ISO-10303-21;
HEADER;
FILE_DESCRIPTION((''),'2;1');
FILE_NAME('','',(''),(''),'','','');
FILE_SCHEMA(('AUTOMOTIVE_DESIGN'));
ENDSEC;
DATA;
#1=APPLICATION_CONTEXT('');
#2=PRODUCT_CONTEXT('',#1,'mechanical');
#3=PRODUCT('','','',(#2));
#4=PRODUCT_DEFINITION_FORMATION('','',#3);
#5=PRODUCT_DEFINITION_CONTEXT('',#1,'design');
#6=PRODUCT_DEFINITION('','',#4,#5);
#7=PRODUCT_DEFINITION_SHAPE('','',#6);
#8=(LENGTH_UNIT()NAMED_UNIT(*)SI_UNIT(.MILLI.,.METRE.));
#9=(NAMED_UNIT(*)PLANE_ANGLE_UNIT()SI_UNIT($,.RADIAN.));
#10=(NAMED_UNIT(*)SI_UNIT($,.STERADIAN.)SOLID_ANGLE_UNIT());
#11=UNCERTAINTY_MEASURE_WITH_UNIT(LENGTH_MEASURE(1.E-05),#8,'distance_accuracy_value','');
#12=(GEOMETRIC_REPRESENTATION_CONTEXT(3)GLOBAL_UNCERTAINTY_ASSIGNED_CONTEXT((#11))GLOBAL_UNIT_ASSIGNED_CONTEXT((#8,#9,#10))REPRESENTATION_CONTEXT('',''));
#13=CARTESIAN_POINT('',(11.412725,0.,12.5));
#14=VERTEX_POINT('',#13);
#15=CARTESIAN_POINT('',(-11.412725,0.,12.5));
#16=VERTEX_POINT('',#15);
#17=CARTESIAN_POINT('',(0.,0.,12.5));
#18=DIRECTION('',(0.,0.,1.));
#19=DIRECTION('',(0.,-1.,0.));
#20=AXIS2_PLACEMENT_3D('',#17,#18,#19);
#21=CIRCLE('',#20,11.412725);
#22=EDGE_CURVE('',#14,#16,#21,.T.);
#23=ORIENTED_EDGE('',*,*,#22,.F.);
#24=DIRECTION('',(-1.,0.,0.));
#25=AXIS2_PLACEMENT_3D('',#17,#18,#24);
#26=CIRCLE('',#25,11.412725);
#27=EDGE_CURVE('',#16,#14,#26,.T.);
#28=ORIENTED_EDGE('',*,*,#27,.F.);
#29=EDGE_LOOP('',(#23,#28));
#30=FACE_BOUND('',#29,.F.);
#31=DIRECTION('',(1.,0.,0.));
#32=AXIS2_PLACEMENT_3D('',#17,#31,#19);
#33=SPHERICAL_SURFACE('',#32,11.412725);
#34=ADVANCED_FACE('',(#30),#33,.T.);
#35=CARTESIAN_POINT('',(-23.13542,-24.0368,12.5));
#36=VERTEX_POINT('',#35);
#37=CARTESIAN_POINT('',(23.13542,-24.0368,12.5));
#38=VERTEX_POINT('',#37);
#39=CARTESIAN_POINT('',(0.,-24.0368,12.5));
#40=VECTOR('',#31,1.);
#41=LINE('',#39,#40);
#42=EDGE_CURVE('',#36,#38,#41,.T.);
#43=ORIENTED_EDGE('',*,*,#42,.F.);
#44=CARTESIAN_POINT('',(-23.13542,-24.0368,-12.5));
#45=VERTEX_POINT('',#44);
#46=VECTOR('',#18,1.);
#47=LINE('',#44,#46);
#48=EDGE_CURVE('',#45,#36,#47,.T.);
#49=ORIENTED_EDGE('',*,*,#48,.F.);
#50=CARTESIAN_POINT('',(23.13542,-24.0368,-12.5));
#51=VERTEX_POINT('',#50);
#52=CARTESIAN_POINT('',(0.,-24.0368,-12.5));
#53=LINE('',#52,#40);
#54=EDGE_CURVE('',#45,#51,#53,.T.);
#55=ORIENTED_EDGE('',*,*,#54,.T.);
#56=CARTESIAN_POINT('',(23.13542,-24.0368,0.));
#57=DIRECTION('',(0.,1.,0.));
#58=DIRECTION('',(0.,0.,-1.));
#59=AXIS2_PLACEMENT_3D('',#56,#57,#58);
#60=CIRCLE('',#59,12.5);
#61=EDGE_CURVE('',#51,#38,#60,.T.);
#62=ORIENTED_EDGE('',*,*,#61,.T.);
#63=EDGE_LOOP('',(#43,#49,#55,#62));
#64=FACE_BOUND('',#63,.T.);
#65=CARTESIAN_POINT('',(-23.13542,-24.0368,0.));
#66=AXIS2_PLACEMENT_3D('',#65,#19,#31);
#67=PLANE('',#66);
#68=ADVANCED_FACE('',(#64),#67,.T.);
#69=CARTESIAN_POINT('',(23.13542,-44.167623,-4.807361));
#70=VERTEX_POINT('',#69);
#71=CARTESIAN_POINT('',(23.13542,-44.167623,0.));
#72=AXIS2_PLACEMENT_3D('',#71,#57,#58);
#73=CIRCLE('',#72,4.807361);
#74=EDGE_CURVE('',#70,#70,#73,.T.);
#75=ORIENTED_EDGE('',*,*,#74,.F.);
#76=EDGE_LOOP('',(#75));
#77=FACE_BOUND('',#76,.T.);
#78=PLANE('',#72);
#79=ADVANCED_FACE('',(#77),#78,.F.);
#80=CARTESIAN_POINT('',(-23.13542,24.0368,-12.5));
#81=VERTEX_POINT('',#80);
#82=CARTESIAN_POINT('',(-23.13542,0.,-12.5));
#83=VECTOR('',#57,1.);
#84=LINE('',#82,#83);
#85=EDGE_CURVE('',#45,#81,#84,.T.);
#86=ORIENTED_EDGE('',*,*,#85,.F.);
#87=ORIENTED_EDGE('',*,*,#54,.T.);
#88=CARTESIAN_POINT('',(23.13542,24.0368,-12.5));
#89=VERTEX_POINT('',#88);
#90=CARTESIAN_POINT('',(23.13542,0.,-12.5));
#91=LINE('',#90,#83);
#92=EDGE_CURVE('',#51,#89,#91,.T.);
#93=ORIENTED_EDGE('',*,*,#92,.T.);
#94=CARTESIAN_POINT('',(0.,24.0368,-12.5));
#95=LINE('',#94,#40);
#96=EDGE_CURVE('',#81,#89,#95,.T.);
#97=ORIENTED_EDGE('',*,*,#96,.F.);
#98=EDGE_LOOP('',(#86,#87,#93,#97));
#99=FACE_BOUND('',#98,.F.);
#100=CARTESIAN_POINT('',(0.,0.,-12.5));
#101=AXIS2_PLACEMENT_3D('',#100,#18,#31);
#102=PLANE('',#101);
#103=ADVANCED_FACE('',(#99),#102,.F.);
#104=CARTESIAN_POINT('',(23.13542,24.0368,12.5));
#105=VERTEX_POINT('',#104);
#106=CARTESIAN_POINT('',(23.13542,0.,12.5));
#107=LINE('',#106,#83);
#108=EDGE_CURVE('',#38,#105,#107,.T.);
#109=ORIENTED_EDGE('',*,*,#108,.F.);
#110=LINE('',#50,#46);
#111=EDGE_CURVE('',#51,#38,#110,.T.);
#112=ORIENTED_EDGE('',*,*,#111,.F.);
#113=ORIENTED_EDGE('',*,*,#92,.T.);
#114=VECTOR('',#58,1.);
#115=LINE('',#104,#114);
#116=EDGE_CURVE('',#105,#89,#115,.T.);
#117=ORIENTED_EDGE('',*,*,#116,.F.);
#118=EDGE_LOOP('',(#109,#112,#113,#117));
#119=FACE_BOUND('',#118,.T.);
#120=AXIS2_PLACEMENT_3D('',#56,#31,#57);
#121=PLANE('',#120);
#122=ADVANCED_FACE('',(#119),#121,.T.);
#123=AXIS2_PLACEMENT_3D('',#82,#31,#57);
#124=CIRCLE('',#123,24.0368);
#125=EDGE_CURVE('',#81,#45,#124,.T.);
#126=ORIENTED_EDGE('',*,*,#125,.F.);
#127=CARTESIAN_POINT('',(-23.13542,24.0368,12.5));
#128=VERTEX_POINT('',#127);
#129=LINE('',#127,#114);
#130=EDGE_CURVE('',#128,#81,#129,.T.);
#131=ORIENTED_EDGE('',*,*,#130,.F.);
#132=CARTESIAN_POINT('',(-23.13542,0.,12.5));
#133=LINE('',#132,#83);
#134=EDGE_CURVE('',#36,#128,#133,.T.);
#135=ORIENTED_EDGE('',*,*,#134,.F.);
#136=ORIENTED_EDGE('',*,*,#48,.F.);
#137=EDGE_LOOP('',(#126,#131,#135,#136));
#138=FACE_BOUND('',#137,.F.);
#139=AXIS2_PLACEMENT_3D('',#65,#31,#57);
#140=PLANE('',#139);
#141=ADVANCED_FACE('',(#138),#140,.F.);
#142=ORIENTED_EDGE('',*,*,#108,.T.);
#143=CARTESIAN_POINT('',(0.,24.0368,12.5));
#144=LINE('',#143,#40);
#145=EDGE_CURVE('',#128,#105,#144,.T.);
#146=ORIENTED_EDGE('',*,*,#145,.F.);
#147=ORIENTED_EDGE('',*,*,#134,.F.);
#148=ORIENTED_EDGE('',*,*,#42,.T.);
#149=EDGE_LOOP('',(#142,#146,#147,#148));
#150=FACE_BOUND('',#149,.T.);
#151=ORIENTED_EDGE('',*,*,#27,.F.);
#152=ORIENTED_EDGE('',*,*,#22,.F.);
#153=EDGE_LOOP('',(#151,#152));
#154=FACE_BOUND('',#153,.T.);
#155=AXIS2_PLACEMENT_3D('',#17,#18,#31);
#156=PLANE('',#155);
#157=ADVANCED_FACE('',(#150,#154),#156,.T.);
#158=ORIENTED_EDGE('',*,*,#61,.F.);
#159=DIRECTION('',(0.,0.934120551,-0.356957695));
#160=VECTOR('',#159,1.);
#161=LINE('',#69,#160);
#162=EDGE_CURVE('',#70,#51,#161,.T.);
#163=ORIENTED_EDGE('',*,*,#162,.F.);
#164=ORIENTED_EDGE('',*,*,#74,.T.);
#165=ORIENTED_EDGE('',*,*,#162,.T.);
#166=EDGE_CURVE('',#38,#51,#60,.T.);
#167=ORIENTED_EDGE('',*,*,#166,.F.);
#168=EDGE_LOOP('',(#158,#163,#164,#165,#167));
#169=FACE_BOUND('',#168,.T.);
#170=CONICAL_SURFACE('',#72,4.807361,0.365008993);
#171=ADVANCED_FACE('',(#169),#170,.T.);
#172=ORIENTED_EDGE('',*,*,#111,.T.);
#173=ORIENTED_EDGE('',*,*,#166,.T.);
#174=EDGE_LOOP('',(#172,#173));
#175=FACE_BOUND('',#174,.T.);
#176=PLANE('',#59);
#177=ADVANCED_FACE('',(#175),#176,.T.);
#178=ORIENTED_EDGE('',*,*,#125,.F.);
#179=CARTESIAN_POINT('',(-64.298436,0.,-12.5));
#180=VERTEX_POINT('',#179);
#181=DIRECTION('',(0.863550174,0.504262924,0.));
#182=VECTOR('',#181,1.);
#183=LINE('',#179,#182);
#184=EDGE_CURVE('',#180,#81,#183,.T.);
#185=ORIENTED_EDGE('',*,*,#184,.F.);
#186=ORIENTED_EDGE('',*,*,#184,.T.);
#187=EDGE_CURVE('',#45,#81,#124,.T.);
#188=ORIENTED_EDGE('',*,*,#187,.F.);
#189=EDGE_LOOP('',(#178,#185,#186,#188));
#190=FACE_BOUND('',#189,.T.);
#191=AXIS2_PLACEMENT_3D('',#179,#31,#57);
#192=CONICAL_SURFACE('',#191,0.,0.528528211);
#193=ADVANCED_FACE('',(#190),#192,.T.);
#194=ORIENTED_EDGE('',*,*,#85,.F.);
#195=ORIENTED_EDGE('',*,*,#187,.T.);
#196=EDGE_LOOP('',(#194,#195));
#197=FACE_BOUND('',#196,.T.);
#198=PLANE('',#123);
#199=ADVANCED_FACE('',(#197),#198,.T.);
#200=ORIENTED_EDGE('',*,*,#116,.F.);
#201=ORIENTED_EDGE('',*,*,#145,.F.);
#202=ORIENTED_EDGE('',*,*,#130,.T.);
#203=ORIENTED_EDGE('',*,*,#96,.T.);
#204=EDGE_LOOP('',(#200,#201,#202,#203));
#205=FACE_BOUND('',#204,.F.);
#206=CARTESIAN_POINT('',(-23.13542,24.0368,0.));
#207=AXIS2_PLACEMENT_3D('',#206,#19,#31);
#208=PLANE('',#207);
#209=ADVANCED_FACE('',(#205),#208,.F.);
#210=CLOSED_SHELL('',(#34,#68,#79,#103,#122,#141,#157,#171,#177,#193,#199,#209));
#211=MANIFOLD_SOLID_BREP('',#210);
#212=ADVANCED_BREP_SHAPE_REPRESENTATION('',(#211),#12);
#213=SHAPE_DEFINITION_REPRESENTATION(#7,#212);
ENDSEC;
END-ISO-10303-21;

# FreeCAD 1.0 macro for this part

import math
import FreeCAD as App
import Part
import Sketcher
from FreeCAD import Vector

doc = App.newDocument("Part")
body = doc.addObject("PartDesign::Body", "Body")

# Sketch on XY plane
sketch1 = body.newObject("Sketcher::SketchObject", "Sketch")
sketch1.AttachmentSupport = (doc.getObject("XY_Plane"), [""])
sketch1.MapMode = "FlatFace"
sketch1.addGeometry(Part.LineSegment(Vector(-23.13542, 24.0368, 0), Vector(-23.13542, -24.0368, 0)), False)
sketch1.addGeometry(Part.LineSegment(Vector(-23.13542, -24.0368, 0), Vector(23.13542, -24.0368, 0)), False)
sketch1.addGeometry(Part.LineSegment(Vector(23.13542, -24.0368, 0), Vector(23.13542, 24.0368, 0)), False)
sketch1.addGeometry(Part.LineSegment(Vector(23.13542, 24.0368, 0), Vector(-23.13542, 24.0368, 0)), False)
sketch1.addConstraint(Sketcher.Constraint("Coincident", 0, 2, 1, 1))
sketch1.addConstraint(Sketcher.Constraint("Coincident", 1, 2, 2, 1))
sketch1.addConstraint(Sketcher.Constraint("Coincident", 2, 2, 3, 1))
sketch1.addConstraint(Sketcher.Constraint("Coincident", 3, 2, 0, 1))
sketch1.addConstraint(Sketcher.Constraint("Vertical", 0))
sketch1.addConstraint(Sketcher.Constraint("Horizontal", 1))
sketch1.addConstraint(Sketcher.Constraint("Vertical", 2))
sketch1.addConstraint(Sketcher.Constraint("Horizontal", 3))
sketch1.addConstraint(Sketcher.Constraint("Symmetric", 0, 2, 2, 2, -1, 1))
sketch1.addConstraint(Sketcher.Constraint("DistanceY", 0, 2, 0, 1, 48.0736))
sketch1.addConstraint(Sketcher.Constraint("DistanceX", 1, 1, 1, 2, 46.27084))
pad1 = body.newObject("PartDesign::Pad", "Pad")
pad1.Profile = sketch1
pad1.Length = 25
pad1.Midplane = True

# Sketch on XY plane
sketch2 = body.newObject("Sketcher::SketchObject", "Sketch001")
sketch2.AttachmentSupport = (doc.getObject("XY_Plane"), [""])
sketch2.MapMode = "FlatFace"
sketch2.AttachmentOffset = App.Placement(Vector(0, 0, 12.5), App.Rotation())
sketch2.addGeometry(Part.ArcOfCircle(Part.Circle(Vector(0, 0, 0), Vector(0, 0, 1), 11.412725), math.radians(180), math.radians(360)), False)
sketch2.addGeometry(Part.LineSegment(Vector(11.412725, 0, 0), Vector(-11.412725, 0, 0)), False)
sketch2.addConstraint(Sketcher.Constraint("Coincident", 0, 1, 1, 2))
sketch2.addConstraint(Sketcher.Constraint("Coincident", 1, 1, 0, 2))
sketch2.addConstraint(Sketcher.Constraint("Horizontal", 1))
sketch2.addConstraint(Sketcher.Constraint("Coincident", 0, 3, -1, 1))
sketch2.addConstraint(Sketcher.Constraint("PointOnObject", 0, 1, -1))
sketch2.addConstraint(Sketcher.Constraint("Radius", 0, 11.412725))
revolution = body.newObject("PartDesign::Revolution", "Revolution")
revolution.Profile = sketch2
revolution.ReferenceAxis = (sketch2, ["H_Axis"])
revolution.Angle = 360

# Sketch on XY plane
sketch3 = body.newObject("Sketcher::SketchObject", "Sketch002")
sketch3.AttachmentSupport = (doc.getObject("XY_Plane"), [""])
sketch3.MapMode = "FlatFace"
sketch3.AttachmentOffset = App.Placement(Vector(0, 0, -12.5), App.Rotation())
sketch3.addGeometry(Part.LineSegment(Vector(-64.298436, 0, 0), Vector(-23.13542, 24.0368, 0)), False)
sketch3.addGeometry(Part.LineSegment(Vector(-23.13542, 24.0368, 0), Vector(-23.13542, 0, 0)), False)
sketch3.addGeometry(Part.LineSegment(Vector(-23.13542, 0, 0), Vector(-64.298436, 0, 0)), False)
sketch3.addConstraint(Sketcher.Constraint("Coincident", 0, 2, 1, 1))
sketch3.addConstraint(Sketcher.Constraint("Coincident", 1, 2, 2, 1))
sketch3.addConstraint(Sketcher.Constraint("Coincident", 2, 2, 0, 1))
sketch3.addConstraint(Sketcher.Constraint("Vertical", 1))
sketch3.addConstraint(Sketcher.Constraint("Horizontal", 2))
sketch3.addConstraint(Sketcher.Constraint("PointOnObject", 1, 2, -1))
sketch3.addConstraint(Sketcher.Constraint("DistanceY", 1, 2, 1, 1, 24.0368))
sketch3.addConstraint(Sketcher.Constraint("DistanceX", 2, 2, 2, 1, 41.163016))
sketch3.addConstraint(Sketcher.Constraint("DistanceX", 0, 2, -1, 1, 23.13542))
revolution2 = body.newObject("PartDesign::Revolution", "Revolution001")
revolution2.Profile = sketch3
revolution2.ReferenceAxis = (sketch3, ["H_Axis"])
revolution2.Angle = 360

# Sketch on YZ plane
sketch4 = body.newObject("Sketcher::SketchObject", "Sketch003")
sketch4.AttachmentSupport = (doc.getObject("YZ_Plane"), [""])
sketch4.MapMode = "FlatFace"
sketch4.AttachmentOffset = App.Placement(Vector(0, 0, 23.13542), App.Rotation())
sketch4.addGeometry(Part.LineSegment(Vector(-44.167623, -4.807361, 0), Vector(-24.0368, -12.5, 0)), False)
sketch4.addGeometry(Part.LineSegment(Vector(-24.0368, -12.5, 0), Vector(-24.0368, 0, 0)), False)
sketch4.addGeometry(Part.LineSegment(Vector(-24.0368, 0, 0), Vector(-44.167623, 0, 0)), False)
sketch4.addGeometry(Part.LineSegment(Vector(-44.167623, 0, 0), Vector(-44.167623, -4.807361, 0)), False)
sketch4.addConstraint(Sketcher.Constraint("Coincident", 0, 2, 1, 1))
sketch4.addConstraint(Sketcher.Constraint("Coincident", 1, 2, 2, 1))
sketch4.addConstraint(Sketcher.Constraint("Coincident", 2, 2, 3, 1))
sketch4.addConstraint(Sketcher.Constraint("Coincident", 3, 2, 0, 1))
sketch4.addConstraint(Sketcher.Constraint("Vertical", 1))
sketch4.addConstraint(Sketcher.Constraint("Horizontal", 2))
sketch4.addConstraint(Sketcher.Constraint("Vertical", 3))
sketch4.addConstraint(Sketcher.Constraint("PointOnObject", 1, 2, -1))
sketch4.addConstraint(Sketcher.Constraint("DistanceY", 1, 1, 1, 2, 12.5))
sketch4.addConstraint(Sketcher.Constraint("DistanceY", 3, 2, 3, 1, 4.807361))
sketch4.addConstraint(Sketcher.Constraint("DistanceX", 0, 2, -1, 1, 24.0368))
sketch4.addConstraint(Sketcher.Constraint("DistanceX", 2, 2, 2, 1, 20.130823))
revolution3 = body.newObject("PartDesign::Revolution", "Revolution002")
revolution3.Profile = sketch4
revolution3.ReferenceAxis = (sketch4, ["H_Axis"])
revolution3.Angle = 360

doc.recompute()
